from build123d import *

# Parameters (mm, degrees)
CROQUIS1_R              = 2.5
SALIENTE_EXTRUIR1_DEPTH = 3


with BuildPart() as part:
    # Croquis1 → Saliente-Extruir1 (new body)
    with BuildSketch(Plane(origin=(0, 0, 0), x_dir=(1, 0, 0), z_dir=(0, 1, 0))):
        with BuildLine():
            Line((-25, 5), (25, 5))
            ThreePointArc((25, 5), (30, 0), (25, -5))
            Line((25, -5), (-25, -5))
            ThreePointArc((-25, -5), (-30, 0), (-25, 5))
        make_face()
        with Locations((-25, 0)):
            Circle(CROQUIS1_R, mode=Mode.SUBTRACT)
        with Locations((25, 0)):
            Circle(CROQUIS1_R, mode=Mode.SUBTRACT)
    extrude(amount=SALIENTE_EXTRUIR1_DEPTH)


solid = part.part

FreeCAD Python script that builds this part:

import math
import FreeCAD as App
import Part
import Sketcher

V = App.Vector
Q = App.Units.Quantity

doc = App.newDocument("Part")
body = doc.addObject("PartDesign::Body", "Body")

sketch1 = body.newObject("Sketcher::SketchObject", "Sketch")
sketch1.AttachmentSupport = (doc.getObject("XZ_Plane"), [""])
sketch1.MapMode = "FlatFace"
sketch1.addGeometry([
    Part.LineSegment(V(25, -5, 0), V(-25, -5, 0)),
    Part.ArcOfCircle(Part.Circle(V(-25, 0, 0), V(0, 0, 1), 5), math.radians(90), math.radians(270)),
    Part.LineSegment(V(-25, 5, 0), V(25, 5, 0)),
    Part.ArcOfCircle(Part.Circle(V(25, 0, 0), V(0, 0, 1), 5), math.radians(-90), math.radians(90)),
    Part.Circle(V(25, 0, 0), V(0, 0, 1), 2.5),
    Part.Circle(V(-25, 0, 0), V(0, 0, 1), 2.5),
], False)
sketch1.addConstraint([
    Sketcher.Constraint("Tangent", 0, 2, 1, 2),
    Sketcher.Constraint("Tangent", 1, 1, 2, 1),
    Sketcher.Constraint("Tangent", 2, 2, 3, 2),
    Sketcher.Constraint("Tangent", 3, 1, 0, 1),
    Sketcher.Constraint("Horizontal", 0),
    Sketcher.Constraint("Horizontal", 2),
    Sketcher.Constraint("Coincident", 4, 3, 3, 3),
    Sketcher.Constraint("Coincident", 5, 3, 1, 3),
    Sketcher.Constraint("Equal", 4, 5),
    Sketcher.Constraint("Symmetric", 1, 3, 3, 3, -1, 1),
    Sketcher.Constraint("Diameter", 4, Q("5 mm")),
    Sketcher.Constraint("Radius", 1, Q("5 mm")),
    Sketcher.Constraint("DistanceX", 0, 2, 0, 1, Q("50 mm")),
])
pad1 = body.newObject("PartDesign::Pad", "Pad")
pad1.Profile = sketch1
pad1.Length = 3
pad1.Reversed = True

doc.recompute()
